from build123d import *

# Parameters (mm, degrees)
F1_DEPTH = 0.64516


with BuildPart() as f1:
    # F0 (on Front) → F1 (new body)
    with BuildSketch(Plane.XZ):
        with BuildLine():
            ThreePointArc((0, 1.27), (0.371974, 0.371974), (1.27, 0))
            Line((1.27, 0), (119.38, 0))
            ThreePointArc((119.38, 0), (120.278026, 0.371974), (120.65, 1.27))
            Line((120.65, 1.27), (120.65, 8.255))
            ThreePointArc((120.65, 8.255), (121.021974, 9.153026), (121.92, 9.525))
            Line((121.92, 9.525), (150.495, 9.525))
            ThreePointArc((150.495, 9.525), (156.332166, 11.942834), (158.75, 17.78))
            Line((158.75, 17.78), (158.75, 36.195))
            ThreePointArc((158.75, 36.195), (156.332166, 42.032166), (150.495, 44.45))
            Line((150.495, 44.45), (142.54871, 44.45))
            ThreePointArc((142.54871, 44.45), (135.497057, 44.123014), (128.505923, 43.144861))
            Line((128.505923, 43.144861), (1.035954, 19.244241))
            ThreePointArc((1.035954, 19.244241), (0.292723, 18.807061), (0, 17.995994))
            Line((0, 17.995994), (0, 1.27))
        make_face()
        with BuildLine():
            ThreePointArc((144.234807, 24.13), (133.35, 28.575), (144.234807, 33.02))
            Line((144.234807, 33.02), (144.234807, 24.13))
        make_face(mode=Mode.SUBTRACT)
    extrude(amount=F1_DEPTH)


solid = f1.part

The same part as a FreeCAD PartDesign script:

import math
import FreeCAD as App
import Part
import Sketcher

V = App.Vector
Q = App.Units.Quantity

doc = App.newDocument("Part")
body = doc.addObject("PartDesign::Body", "Body")

sketch1 = body.newObject("Sketcher::SketchObject", "Sketch")
sketch1.AttachmentSupport = (doc.getObject("XZ_Plane"), [""])
sketch1.MapMode = "FlatFace"
sketch1.addGeometry(Part.ArcOfCircle(Part.Circle(V(1.269999, 1.269999, 0), V(0, 0, 1), 1.269999), math.radians(179.99994), math.radians(270.00006)), False)
sketch1.addGeometry(Part.LineSegment(V(1.27, 0, 0), V(119.38, 0, 0)), False)
sketch1.addGeometry(Part.ArcOfCircle(Part.Circle(V(119.380001, 1.269999, 0), V(0, 0, 1), 1.269999), math.radians(-90.00006), math.radians(0.00006)), False)
sketch1.addGeometry(Part.LineSegment(V(120.65, 1.27, 0), V(120.65, 8.255, 0)), False)
sketch1.addGeometry(Part.ArcOfCircle(Part.Circle(V(121.919999, 8.255001, 0), V(0, 0, 1), 1.269999), math.radians(89.99994), math.radians(180.00006)), False)
sketch1.addGeometry(Part.LineSegment(V(121.92, 9.525, 0), V(150.495, 9.525, 0)), False)
sketch1.addGeometry(Part.ArcOfCircle(Part.Circle(V(150.494998, 17.780002, 0), V(0, 0, 1), 8.255002), math.radians(-89.999989), math.radians(-0.000011)), False)
sketch1.addGeometry(Part.LineSegment(V(158.75, 17.78, 0), V(158.75, 36.195, 0)), False)
sketch1.addGeometry(Part.ArcOfCircle(Part.Circle(V(150.494998, 36.194998, 0), V(0, 0, 1), 8.255002), math.radians(0.000011), math.radians(89.999989)), False)
sketch1.addGeometry(Part.LineSegment(V(150.495, 44.45, 0), V(142.54871, 44.45, 0)), False)
sketch1.addGeometry(Part.ArcOfCircle(Part.Circle(V(142.548704, -31.749958, 0), V(0, 0, 1), 76.199958), math.radians(89.999995), math.radians(100.619657)), False)
sketch1.addGeometry(Part.LineSegment(V(128.505923, 43.144861, 0), V(1.035954, 19.244241, 0)), False)
sketch1.addGeometry(Part.ArcOfCircle(Part.Circle(V(1.269998, 17.995995, 0), V(0, 0, 1), 1.269998), math.radians(100.619574), math.radians(180.000027)), False)
sketch1.addGeometry(Part.LineSegment(V(0, 17.995994, 0), V(0, 1.27, 0)), False)
sketch1.addGeometry(Part.LineSegment(V(144.234807, 33.02, 0), V(144.234807, 24.13, 0)), False)
sketch1.addGeometry(Part.ArcOfCircle(Part.Circle(V(139.7, 28.575, 0), V(0, 0, 1), 6.35), math.radians(44.427004), math.radians(315.572996)), False)
sketch1.addConstraint(Sketcher.Constraint("Tangent", 0, 2, 1, 1))
sketch1.addConstraint(Sketcher.Constraint("Tangent", 1, 2, 2, 1))
sketch1.addConstraint(Sketcher.Constraint("Tangent", 2, 2, 3, 1))
sketch1.addConstraint(Sketcher.Constraint("Tangent", 3, 2, 4, 2))
sketch1.addConstraint(Sketcher.Constraint("Tangent", 4, 1, 5, 1))
sketch1.addConstraint(Sketcher.Constraint("Tangent", 5, 2, 6, 1))
sketch1.addConstraint(Sketcher.Constraint("Tangent", 6, 2, 7, 1))
sketch1.addConstraint(Sketcher.Constraint("Tangent", 7, 2, 8, 1))
sketch1.addConstraint(Sketcher.Constraint("Tangent", 8, 2, 9, 1))
sketch1.addConstraint(Sketcher.Constraint("Tangent", 9, 2, 10, 1))
sketch1.addConstraint(Sketcher.Constraint("Tangent", 10, 2, 11, 1))
sketch1.addConstraint(Sketcher.Constraint("Tangent", 11, 2, 12, 1))
sketch1.addConstraint(Sketcher.Constraint("Tangent", 12, 2, 13, 1))
sketch1.addConstraint(Sketcher.Constraint("Tangent", 13, 2, 0, 1))
sketch1.addConstraint(Sketcher.Constraint("Coincident", 14, 1, 15, 1))
sketch1.addConstraint(Sketcher.Constraint("Coincident", 15, 2, 14, 2))
sketch1.addConstraint(Sketcher.Constraint("Horizontal", 1))
sketch1.addConstraint(Sketcher.Constraint("Vertical", 3))
sketch1.addConstraint(Sketcher.Constraint("Horizontal", 5))
sketch1.addConstraint(Sketcher.Constraint("Vertical", 7))
sketch1.addConstraint(Sketcher.Constraint("Horizontal", 9))
sketch1.addConstraint(Sketcher.Constraint("Vertical", 13))
sketch1.addConstraint(Sketcher.Constraint("Vertical", 14))
sketch1.addConstraint(Sketcher.Constraint("Equal", 0, 2))
sketch1.addConstraint(Sketcher.Constraint("Equal", 2, 4))
sketch1.addConstraint(Sketcher.Constraint("Equal", 6, 8))
sketch1.addConstraint(Sketcher.Constraint("Equal", 4, 12))
sketch1.addConstraint(Sketcher.Constraint("PointOnObject", 0, 2, -1))
sketch1.addConstraint(Sketcher.Constraint("PointOnObject", 12, 2, -2))
sketch1.addConstraint(Sketcher.Constraint("Radius", 0, Q("0.0499999 in")))
sketch1.addConstraint(Sketcher.Constraint("Radius", 15, Q("0.25 in")))
sketch1.addConstraint(Sketcher.Constraint("Radius", 6, Q("0.3250001 in")))
sketch1.addConstraint(Sketcher.Constraint("DistanceX", 1, 1, 1, 2, Q("4.65 in")))
sketch1.addConstraint(Sketcher.Constraint("DistanceY", 14, 2, 14, 1, Q("0.35 in")))
sketch1.addConstraint(Sketcher.Constraint("DistanceY", -1, 1, 6, 3, Q("0.7000001 in")))
sketch1.addConstraint(Sketcher.Constraint("DistanceX", -1, 1, 15, 3, Q("5.5 in")))
sketch1.addConstraint(Sketcher.Constraint("DistanceY", -1, 1, 14, 1, Q("1.3 in")))
sketch1.addConstraint(Sketcher.Constraint("DistanceY", 4, 3, 8, 3, Q("1.0999999 in")))
sketch1.addConstraint(Sketcher.Constraint("DistanceX", 5, 1, 5, 2, Q("1.125 in")))
sketch1.addConstraint(Sketcher.Constraint("Radius", 10, 76.199958))
sketch1.addConstraint(Sketcher.Constraint("DistanceX", 9, 2, 9, 1, 7.94629))
sketch1.addConstraint(Sketcher.Constraint("DistanceY", 13, 2, 13, 1, 16.725994))
pad1 = body.newObject("PartDesign::Pad", "Pad")
pad1.Profile = sketch1
pad1.Length = Q("0.0254 in")

doc.recompute()
